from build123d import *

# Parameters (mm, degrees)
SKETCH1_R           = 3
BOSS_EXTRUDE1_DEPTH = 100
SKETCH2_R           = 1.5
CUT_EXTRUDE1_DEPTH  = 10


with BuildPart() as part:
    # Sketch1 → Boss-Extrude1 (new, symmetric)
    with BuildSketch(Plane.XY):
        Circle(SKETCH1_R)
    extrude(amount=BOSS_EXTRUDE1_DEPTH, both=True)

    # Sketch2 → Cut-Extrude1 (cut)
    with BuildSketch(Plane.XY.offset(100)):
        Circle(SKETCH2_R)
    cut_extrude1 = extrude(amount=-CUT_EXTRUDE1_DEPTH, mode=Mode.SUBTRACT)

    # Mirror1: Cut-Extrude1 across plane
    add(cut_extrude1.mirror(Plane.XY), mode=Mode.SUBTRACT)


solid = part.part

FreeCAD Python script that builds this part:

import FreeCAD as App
import Part
import Sketcher
Q = App.Units.Quantity

doc = App.newDocument("Part")
params = doc.addObject("Spreadsheet::Sheet", "Params")
for row, (alias, value) in enumerate([
    ("sketch1_diameter", "6 mm"),
    ("pad1_length", "200 mm"),
    ("sketch2_diameter", "3 mm"),
    ("pocket1_length", "10 mm"),
], start=1):
    params.set(f"A{row}", alias)
    params.set(f"B{row}", "=" + value)
    params.setAlias(f"B{row}", alias)

body = doc.addObject("PartDesign::Body", "Body")

# Sketch on XY plane
sketch1 = doc.addObject("Sketcher::SketchObject", "Sketch")
body.addObject(sketch1)
sketch1.AttachmentSupport = (doc.XY_Plane, [""])
sketch1.MapMode = "FlatFace"
sketch1.addGeometry(Part.Circle(App.Vector(0, 0, 0), App.Vector(0, 0, 1), 3), False)
sketch1.addConstraint(Sketcher.Constraint("Coincident", 0, 3, -1, 1))
sketch1.addConstraint(Sketcher.Constraint("Diameter", 0, Q("6 mm")))
sketch1.setExpression("Constraints[1]", "Params.sketch1_diameter")
pad1 = doc.addObject("PartDesign::Pad", "Pad")
body.addObject(pad1)
pad1.Profile = sketch1
pad1.setExpression("Length", "Params.pad1_length")
pad1.Midplane = True

# Sketch on XY plane
sketch2 = doc.addObject("Sketcher::SketchObject", "Sketch001")
body.addObject(sketch2)
sketch2.AttachmentSupport = (doc.XY_Plane, [""])
sketch2.MapMode = "FlatFace"
sketch2.AttachmentOffset = App.Placement(App.Vector(0, 0, 100), App.Rotation())
sketch2.addGeometry(Part.Circle(App.Vector(0, 0, 0), App.Vector(0, 0, 1), 1.5), False)
sketch2.addConstraint(Sketcher.Constraint("Coincident", 0, 3, -1, 1))
sketch2.addConstraint(Sketcher.Constraint("Diameter", 0, Q("3 mm")))
sketch2.setExpression("Constraints[1]", "Params.sketch2_diameter")
pocket1 = doc.addObject("PartDesign::Pocket", "Pocket")
body.addObject(pocket1)
pocket1.Profile = sketch2
pocket1.setExpression("Length", "Params.pocket1_length")
doc.recompute()

mirrored = doc.addObject("PartDesign::Mirrored", "Mirrored")
body.addObject(mirrored)
mirrored.Originals = [pocket1]
mirrored.MirrorPlane = (doc.XY_Plane, [""])
body.Tip = mirrored

doc.recompute()
